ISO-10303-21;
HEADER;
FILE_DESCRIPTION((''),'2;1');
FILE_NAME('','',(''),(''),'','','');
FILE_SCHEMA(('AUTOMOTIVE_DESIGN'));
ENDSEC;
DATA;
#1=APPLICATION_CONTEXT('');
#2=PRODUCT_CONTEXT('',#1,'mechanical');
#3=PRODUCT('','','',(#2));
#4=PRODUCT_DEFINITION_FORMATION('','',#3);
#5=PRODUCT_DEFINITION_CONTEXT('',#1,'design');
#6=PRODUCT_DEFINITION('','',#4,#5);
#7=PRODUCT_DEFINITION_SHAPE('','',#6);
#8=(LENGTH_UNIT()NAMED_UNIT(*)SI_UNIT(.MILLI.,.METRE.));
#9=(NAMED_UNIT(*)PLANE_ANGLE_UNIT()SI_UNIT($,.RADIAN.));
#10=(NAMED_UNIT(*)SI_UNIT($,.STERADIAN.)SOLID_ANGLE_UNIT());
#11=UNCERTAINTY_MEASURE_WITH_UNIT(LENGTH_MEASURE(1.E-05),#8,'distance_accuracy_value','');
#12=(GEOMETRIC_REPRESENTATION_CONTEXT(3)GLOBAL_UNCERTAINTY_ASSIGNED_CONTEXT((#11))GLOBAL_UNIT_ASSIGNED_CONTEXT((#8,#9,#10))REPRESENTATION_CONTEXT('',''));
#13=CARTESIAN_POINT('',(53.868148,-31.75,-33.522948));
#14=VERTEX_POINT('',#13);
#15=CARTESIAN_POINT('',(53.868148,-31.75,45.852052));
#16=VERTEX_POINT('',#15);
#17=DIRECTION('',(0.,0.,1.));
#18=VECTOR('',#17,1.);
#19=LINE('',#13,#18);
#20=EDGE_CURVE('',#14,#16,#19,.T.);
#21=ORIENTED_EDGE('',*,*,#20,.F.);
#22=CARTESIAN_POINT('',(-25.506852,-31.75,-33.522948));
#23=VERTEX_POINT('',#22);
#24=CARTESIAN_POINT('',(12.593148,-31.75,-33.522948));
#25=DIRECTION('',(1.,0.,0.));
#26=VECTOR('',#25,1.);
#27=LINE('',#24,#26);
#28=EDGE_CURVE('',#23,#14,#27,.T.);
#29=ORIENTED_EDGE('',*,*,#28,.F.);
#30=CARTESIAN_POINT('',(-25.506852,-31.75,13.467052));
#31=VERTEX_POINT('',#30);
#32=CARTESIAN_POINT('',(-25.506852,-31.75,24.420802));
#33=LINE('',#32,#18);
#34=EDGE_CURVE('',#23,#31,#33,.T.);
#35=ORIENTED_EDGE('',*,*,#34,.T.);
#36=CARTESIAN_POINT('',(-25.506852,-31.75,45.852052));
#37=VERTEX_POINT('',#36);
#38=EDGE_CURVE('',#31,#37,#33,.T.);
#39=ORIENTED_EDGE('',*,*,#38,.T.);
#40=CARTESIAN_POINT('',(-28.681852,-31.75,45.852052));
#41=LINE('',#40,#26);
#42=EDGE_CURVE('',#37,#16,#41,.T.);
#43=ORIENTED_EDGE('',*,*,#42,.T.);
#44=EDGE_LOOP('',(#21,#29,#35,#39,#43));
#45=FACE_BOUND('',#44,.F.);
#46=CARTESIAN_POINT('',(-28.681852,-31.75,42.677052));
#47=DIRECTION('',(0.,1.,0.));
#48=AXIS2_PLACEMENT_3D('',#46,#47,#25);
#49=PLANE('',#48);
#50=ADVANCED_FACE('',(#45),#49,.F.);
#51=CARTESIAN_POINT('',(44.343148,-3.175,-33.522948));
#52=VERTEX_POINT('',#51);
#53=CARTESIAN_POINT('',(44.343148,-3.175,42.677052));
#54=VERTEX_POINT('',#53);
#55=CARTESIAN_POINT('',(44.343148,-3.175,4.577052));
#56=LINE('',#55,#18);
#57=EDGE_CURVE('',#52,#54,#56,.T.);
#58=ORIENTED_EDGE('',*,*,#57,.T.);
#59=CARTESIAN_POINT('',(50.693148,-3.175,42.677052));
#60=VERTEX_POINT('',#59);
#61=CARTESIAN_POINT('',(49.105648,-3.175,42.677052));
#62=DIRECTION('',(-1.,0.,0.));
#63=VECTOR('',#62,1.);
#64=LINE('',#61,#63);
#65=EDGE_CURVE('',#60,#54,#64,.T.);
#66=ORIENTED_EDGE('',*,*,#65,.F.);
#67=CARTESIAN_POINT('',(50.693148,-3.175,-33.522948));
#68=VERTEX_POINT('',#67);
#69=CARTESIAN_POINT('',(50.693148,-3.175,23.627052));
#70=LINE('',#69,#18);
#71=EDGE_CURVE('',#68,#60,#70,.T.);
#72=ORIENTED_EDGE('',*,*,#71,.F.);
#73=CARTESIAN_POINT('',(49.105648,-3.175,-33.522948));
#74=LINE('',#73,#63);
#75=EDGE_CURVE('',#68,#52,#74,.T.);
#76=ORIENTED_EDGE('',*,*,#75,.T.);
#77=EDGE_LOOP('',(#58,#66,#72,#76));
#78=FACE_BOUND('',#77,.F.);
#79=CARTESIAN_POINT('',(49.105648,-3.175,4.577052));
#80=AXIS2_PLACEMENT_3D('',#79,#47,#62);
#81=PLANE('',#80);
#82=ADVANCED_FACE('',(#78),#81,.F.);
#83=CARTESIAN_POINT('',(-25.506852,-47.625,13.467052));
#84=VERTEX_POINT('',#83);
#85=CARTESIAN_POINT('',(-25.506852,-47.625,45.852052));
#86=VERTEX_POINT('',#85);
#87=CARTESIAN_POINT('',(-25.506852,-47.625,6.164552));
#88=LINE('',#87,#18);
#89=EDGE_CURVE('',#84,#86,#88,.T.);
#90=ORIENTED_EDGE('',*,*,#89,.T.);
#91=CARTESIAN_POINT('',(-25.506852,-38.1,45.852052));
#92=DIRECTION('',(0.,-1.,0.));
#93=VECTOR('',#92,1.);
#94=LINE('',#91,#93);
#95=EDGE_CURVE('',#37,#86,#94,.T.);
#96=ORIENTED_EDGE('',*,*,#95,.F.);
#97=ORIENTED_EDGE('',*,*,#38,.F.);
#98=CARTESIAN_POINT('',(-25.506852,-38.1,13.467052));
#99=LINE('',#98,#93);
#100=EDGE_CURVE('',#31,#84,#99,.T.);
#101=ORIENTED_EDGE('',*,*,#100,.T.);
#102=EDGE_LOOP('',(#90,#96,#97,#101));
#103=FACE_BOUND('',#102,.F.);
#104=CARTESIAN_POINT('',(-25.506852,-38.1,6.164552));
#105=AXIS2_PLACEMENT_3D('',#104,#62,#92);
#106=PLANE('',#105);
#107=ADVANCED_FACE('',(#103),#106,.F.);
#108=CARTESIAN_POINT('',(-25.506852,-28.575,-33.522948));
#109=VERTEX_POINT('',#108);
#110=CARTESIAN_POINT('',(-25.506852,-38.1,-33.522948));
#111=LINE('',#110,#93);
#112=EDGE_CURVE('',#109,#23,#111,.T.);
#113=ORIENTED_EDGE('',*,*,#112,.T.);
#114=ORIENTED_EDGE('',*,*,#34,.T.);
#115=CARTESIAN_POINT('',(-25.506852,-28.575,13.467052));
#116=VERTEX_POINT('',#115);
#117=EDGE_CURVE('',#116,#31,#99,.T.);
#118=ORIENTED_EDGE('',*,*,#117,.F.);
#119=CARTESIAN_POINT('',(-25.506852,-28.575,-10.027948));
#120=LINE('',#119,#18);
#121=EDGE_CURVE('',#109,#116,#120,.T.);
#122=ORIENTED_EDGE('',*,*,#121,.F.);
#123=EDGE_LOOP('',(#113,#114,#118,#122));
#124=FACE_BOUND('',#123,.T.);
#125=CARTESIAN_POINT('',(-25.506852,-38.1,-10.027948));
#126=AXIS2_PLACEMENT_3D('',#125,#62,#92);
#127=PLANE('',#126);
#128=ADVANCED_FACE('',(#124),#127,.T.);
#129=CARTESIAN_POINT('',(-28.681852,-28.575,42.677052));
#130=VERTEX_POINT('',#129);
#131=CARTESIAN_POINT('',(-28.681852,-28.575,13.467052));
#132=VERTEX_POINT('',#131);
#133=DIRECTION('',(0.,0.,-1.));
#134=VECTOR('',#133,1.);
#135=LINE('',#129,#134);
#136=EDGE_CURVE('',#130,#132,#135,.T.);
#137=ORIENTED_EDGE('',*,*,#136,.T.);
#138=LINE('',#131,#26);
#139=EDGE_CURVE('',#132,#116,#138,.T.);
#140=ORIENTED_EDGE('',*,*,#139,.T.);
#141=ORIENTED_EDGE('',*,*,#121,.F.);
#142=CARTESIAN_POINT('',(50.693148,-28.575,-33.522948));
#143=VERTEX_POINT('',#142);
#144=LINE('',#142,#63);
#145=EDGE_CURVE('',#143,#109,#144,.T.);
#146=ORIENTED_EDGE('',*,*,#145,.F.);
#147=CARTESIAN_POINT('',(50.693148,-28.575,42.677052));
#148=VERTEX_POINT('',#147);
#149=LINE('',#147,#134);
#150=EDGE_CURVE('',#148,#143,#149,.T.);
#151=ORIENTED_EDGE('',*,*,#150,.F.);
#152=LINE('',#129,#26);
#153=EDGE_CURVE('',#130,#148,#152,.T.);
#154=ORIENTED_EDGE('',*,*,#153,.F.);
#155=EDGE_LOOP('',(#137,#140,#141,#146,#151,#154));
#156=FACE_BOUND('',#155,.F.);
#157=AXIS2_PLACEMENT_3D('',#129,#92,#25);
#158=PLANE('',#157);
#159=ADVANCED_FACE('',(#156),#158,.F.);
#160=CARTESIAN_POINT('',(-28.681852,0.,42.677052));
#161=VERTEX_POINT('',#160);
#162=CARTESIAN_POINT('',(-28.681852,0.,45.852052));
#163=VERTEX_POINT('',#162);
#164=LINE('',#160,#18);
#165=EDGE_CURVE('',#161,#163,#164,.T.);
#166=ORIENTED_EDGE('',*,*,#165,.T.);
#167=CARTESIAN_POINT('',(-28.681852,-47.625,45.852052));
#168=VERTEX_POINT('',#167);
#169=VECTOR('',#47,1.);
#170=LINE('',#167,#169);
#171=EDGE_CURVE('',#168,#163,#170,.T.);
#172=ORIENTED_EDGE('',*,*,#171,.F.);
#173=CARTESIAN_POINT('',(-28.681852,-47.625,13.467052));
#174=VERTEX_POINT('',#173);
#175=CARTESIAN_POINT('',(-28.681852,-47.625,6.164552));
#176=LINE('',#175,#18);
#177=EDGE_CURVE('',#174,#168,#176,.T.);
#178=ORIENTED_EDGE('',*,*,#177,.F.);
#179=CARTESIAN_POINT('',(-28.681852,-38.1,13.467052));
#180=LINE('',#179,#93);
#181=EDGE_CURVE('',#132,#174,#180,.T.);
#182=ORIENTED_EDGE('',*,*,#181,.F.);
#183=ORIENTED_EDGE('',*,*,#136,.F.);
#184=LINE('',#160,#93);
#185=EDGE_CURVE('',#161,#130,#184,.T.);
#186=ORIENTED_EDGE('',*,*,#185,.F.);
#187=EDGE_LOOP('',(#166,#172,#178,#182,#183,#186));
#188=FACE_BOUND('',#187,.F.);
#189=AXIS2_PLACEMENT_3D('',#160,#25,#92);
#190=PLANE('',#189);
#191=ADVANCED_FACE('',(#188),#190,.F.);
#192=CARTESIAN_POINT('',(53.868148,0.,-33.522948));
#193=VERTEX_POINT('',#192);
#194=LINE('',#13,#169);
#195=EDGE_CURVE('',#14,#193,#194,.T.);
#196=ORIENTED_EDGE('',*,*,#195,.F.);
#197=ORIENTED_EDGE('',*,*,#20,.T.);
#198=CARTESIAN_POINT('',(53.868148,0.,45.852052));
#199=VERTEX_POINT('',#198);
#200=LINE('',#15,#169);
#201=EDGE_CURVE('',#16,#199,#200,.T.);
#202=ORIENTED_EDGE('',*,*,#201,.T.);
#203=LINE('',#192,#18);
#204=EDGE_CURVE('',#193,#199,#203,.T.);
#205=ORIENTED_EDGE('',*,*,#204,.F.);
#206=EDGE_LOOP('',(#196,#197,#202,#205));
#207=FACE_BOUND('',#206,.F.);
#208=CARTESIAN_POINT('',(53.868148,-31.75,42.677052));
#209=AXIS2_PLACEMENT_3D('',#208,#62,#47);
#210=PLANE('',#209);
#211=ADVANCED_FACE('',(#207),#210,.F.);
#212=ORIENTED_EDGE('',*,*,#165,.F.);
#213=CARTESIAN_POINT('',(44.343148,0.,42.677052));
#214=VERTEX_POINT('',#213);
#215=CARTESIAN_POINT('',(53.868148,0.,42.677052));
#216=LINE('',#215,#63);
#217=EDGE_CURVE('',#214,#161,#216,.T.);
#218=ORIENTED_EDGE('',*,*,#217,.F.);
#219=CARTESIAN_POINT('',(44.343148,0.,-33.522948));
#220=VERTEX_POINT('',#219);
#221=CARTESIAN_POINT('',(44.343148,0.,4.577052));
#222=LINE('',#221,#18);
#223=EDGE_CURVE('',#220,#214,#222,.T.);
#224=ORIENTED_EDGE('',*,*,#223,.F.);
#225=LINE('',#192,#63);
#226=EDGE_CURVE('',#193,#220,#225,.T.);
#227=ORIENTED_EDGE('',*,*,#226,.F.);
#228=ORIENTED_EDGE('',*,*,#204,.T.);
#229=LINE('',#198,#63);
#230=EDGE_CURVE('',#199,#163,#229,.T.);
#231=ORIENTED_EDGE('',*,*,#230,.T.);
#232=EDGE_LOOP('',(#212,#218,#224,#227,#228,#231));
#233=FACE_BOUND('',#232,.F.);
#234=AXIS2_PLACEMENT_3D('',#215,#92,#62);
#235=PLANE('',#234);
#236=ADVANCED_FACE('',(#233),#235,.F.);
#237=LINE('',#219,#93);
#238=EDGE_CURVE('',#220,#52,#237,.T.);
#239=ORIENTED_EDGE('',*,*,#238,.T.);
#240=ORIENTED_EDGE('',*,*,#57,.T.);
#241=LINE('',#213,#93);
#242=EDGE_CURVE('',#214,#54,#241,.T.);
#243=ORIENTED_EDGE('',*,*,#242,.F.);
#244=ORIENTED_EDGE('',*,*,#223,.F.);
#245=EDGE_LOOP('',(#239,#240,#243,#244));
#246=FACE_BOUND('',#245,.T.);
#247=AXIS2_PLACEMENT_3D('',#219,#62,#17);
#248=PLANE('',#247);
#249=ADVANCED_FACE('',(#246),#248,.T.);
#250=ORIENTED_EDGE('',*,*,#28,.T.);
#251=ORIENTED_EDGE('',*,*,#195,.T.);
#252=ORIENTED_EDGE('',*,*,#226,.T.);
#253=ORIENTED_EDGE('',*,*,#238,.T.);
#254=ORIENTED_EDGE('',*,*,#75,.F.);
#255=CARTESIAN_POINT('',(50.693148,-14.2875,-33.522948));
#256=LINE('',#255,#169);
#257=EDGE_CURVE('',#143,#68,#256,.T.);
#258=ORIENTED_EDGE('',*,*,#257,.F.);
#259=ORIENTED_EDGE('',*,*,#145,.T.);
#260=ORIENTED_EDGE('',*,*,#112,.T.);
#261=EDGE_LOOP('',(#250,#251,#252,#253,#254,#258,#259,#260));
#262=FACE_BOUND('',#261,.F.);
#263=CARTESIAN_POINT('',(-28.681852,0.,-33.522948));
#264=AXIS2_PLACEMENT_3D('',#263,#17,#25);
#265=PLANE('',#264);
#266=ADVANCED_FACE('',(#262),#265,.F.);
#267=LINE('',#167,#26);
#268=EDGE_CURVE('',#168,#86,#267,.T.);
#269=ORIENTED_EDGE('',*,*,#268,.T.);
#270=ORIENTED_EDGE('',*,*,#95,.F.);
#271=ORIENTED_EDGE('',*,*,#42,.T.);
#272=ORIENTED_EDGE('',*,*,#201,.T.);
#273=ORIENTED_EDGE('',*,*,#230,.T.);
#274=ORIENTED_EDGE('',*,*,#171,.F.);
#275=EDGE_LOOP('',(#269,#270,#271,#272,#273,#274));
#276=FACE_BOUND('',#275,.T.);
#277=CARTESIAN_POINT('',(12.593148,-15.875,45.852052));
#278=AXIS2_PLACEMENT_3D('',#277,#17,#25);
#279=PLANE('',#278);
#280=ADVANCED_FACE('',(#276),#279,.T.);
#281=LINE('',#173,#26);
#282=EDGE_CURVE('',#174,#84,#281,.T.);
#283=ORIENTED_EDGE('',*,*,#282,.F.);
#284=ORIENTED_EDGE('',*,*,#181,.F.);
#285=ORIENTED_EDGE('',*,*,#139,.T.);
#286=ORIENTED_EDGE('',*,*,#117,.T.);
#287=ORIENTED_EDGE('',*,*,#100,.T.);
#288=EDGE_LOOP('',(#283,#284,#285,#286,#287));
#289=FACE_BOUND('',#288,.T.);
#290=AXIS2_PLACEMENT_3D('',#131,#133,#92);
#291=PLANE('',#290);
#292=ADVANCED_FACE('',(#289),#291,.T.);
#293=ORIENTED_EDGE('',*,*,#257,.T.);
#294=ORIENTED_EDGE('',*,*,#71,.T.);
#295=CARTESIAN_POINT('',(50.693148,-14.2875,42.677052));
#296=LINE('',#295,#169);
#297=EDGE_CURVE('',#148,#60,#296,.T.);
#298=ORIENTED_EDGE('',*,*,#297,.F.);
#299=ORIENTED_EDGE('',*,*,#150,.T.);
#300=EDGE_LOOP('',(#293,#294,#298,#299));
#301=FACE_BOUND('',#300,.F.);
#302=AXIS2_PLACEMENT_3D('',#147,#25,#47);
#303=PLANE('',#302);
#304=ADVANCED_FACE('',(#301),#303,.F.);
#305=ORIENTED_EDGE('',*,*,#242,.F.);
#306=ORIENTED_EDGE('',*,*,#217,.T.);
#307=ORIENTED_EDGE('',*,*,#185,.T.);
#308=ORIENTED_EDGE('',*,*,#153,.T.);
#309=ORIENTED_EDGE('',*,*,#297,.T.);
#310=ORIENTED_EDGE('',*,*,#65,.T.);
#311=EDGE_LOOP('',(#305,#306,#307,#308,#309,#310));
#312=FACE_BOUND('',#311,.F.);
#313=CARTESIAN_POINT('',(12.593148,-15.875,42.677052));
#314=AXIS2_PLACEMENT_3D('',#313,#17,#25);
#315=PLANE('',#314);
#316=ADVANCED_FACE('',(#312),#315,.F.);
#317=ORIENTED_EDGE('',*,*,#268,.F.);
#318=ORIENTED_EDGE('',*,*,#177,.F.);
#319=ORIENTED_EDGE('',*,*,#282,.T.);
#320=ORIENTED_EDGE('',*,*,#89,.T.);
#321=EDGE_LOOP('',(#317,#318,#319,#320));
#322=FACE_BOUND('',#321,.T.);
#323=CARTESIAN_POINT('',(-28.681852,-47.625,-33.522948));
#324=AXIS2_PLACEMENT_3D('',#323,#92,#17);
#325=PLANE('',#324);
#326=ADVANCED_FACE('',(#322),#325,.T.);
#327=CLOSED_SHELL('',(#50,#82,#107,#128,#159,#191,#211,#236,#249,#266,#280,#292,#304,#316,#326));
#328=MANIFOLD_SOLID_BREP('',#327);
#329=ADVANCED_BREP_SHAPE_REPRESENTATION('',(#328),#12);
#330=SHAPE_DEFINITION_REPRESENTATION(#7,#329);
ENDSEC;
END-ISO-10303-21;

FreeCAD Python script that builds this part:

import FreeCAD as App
import Part
import Sketcher
from FreeCAD import Vector
Q = App.Units.Quantity

doc = App.newDocument("Part")
params = doc.addObject("Spreadsheet::Sheet", "Params")
for row, (alias, value) in enumerate([
    ("sketch1_height", "3 in"),
    ("sketch1_width", "3.25 in"),
    ("pad1_length", "1.25 in"),
    ("sketch2_width", "3.125 in"),
    ("sketch2_height", "1.125 in"),
    ("pocket1_length", "4 in"),
    ("sketch3_height", "3 in"),
    ("sketch3_width", "0.375 in"),
    ("pad2_length", "0.125 in"),
    ("sketch4_width", "3.25 in"),
    ("sketch4_height", "1.25 in"),
    ("pad3_length", "0.125 in"),
    ("sketch5_width", "0.75 in"),
    ("sketch5_height", "3.125 in"),
    ("pad4_length", "0.125 in"),
    ("sketch6_width", "0.75 in"),
    ("sketch6_height", "1.85 in"),
    ("pocket2_length", "0.125 in"),
], start=1):
    params.set(f"A{row}", alias)
    params.set(f"B{row}", "=" + value)
    params.setAlias(f"B{row}", alias)

body = doc.addObject("PartDesign::Body", "Body")

sketch1 = body.newObject("Sketcher::SketchObject", "Sketch")
sketch1.AttachmentSupport = (doc.getObject("XZ_Plane"), [""])
sketch1.MapMode = "FlatFace"
sketch1.addGeometry([
    Part.LineSegment(Vector(-29, 43, 0), Vector(-29, -34, 0)),
    Part.LineSegment(Vector(-29, -34, 0), Vector(54, -34, 0)),
    Part.LineSegment(Vector(54, -34, 0), Vector(54, 43, 0)),
    Part.LineSegment(Vector(54, 43, 0), Vector(-29, 43, 0)),
], False)
sketch1.addConstraint([
    Sketcher.Constraint("Coincident", 0, 2, 1, 1),
    Sketcher.Constraint("Coincident", 1, 2, 2, 1),
    Sketcher.Constraint("Coincident", 2, 2, 3, 1),
    Sketcher.Constraint("Coincident", 3, 2, 0, 1),
    Sketcher.Constraint("Vertical", 0),
    Sketcher.Constraint("Horizontal", 1),
    Sketcher.Constraint("Vertical", 2),
    Sketcher.Constraint("Horizontal", 3),
    Sketcher.Constraint("DistanceY", 0, 2, 0, 1, Q("3 in")),
    Sketcher.Constraint("DistanceX", 1, 1, 1, 2, Q("3.25 in")),
    Sketcher.Constraint("DistanceX", 0, 2, -1, 1, Q("28.681852 mm")),
    Sketcher.Constraint("DistanceY", 0, 2, -1, 1, Q("33.522948 mm")),
])
sketch1.setExpression("Constraints[8]", "Params.sketch1_height")
sketch1.setExpression("Constraints[9]", "Params.sketch1_width")
pad1 = body.newObject("PartDesign::Pad", "Pad")
pad1.Profile = sketch1
pad1.setExpression("Length", "Params.pad1_length")

sketch2 = body.newObject("Sketcher::SketchObject", "Sketch001")
sketch2.AttachmentSupport = (doc.getObject("XY_Plane"), [""])
sketch2.MapMode = "FlatFace"
sketch2.AttachmentOffset = App.Placement(Vector(0, 0, 42.677052), App.Rotation())
sketch2.addGeometry([
    Part.LineSegment(Vector(-29, 0, 0), Vector(-29, -29, 0)),
    Part.LineSegment(Vector(-29, -29, 0), Vector(51, -29, 0)),
    Part.LineSegment(Vector(51, -29, 0), Vector(51, 0, 0)),
    Part.LineSegment(Vector(51, 0, 0), Vector(-29, 0, 0)),
], False)
sketch2.addConstraint([
    Sketcher.Constraint("Coincident", 0, 2, 1, 1),
    Sketcher.Constraint("Coincident", 1, 2, 2, 1),
    Sketcher.Constraint("Coincident", 2, 2, 3, 1),
    Sketcher.Constraint("Coincident", 3, 2, 0, 1),
    Sketcher.Constraint("Vertical", 0),
    Sketcher.Constraint("Horizontal", 1),
    Sketcher.Constraint("Vertical", 2),
    Sketcher.Constraint("Horizontal", 3),
    Sketcher.Constraint("PointOnObject", 2, 2, -1),
    Sketcher.Constraint("DistanceX", 1, 1, 1, 2, Q("3.125 in")),
    Sketcher.Constraint("DistanceY", 0, 2, 0, 1, Q("1.125 in")),
    Sketcher.Constraint("DistanceX", 0, 2, -1, 1, Q("28.681852 mm")),
])
sketch2.setExpression("Constraints[9]", "Params.sketch2_width")
sketch2.setExpression("Constraints[10]", "Params.sketch2_height")
pocket1 = body.newObject("PartDesign::Pocket", "Pocket")
pocket1.Profile = sketch2
pocket1.setExpression("Length", "Params.pocket1_length")

sketch3 = body.newObject("Sketcher::SketchObject", "Sketch002")
sketch3.AttachmentSupport = (doc.getObject("XZ_Plane"), [""])
sketch3.MapMode = "FlatFace"
sketch3.addGeometry([
    Part.LineSegment(Vector(54, 43, 0), Vector(54, -34, 0)),
    Part.LineSegment(Vector(54, -34, 0), Vector(44, -34, 0)),
    Part.LineSegment(Vector(44, -34, 0), Vector(44, 43, 0)),
    Part.LineSegment(Vector(44, 43, 0), Vector(54, 43, 0)),
], False)
sketch3.addConstraint([
    Sketcher.Constraint("Coincident", 0, 2, 1, 1),
    Sketcher.Constraint("Coincident", 1, 2, 2, 1),
    Sketcher.Constraint("Coincident", 2, 2, 3, 1),
    Sketcher.Constraint("Coincident", 3, 2, 0, 1),
    Sketcher.Constraint("Vertical", 0),
    Sketcher.Constraint("Horizontal", 1),
    Sketcher.Constraint("Vertical", 2),
    Sketcher.Constraint("Horizontal", 3),
    Sketcher.Constraint("DistanceY", 0, 2, 0, 1, Q("3 in")),
    Sketcher.Constraint("DistanceX", 1, 2, 1, 1, Q("0.375 in")),
    Sketcher.Constraint("DistanceX", -1, 1, 0, 2, Q("53.868148 mm")),
    Sketcher.Constraint("DistanceY", 0, 2, -1, 1, Q("33.522948 mm")),
])
sketch3.setExpression("Constraints[8]", "Params.sketch3_height")
sketch3.setExpression("Constraints[9]", "Params.sketch3_width")
pad2 = body.newObject("PartDesign::Pad", "Pad001")
pad2.Profile = sketch3
pad2.setExpression("Length", "Params.pad2_length")

sketch4 = body.newObject("Sketcher::SketchObject", "Sketch003")
sketch4.AttachmentSupport = (doc.getObject("XY_Plane"), [""])
sketch4.MapMode = "FlatFace"
sketch4.AttachmentOffset = App.Placement(Vector(0, 0, 42.677052), App.Rotation())
sketch4.addGeometry([
    Part.LineSegment(Vector(-29, -32, 0), Vector(54, -32, 0)),
    Part.LineSegment(Vector(54, -32, 0), Vector(54, 0, 0)),
    Part.LineSegment(Vector(54, 0, 0), Vector(-29, 0, 0)),
    Part.LineSegment(Vector(-29, 0, 0), Vector(-29, -32, 0)),
], False)
sketch4.addConstraint([
    Sketcher.Constraint("Coincident", 0, 2, 1, 1),
    Sketcher.Constraint("Coincident", 1, 2, 2, 1),
    Sketcher.Constraint("Coincident", 2, 2, 3, 1),
    Sketcher.Constraint("Coincident", 3, 2, 0, 1),
    Sketcher.Constraint("Horizontal", 0),
    Sketcher.Constraint("Vertical", 1),
    Sketcher.Constraint("Horizontal", 2),
    Sketcher.Constraint("Vertical", 3),
    Sketcher.Constraint("PointOnObject", 1, 2, -1),
    Sketcher.Constraint("DistanceX", 0, 1, 0, 2, Q("3.25 in")),
    Sketcher.Constraint("DistanceY", 1, 1, 1, 2, Q("1.25 in")),
    Sketcher.Constraint("DistanceX", 2, 2, -1, 1, Q("28.681852 mm")),
])
sketch4.setExpression("Constraints[9]", "Params.sketch4_width")
sketch4.setExpression("Constraints[10]", "Params.sketch4_height")
pad3 = body.newObject("PartDesign::Pad", "Pad002")
pad3.Profile = sketch4
pad3.setExpression("Length", "Params.pad3_length")

sketch5 = body.newObject("Sketcher::SketchObject", "Sketch004")
sketch5.AttachmentSupport = (doc.getObject("YZ_Plane"), [""])
sketch5.MapMode = "FlatFace"
sketch5.AttachmentOffset = App.Placement(Vector(0, 0, -28.681852), App.Rotation())
sketch5.addGeometry([
    Part.LineSegment(Vector(-29, 46, 0), Vector(-29, -34, 0)),
    Part.LineSegment(Vector(-29, -34, 0), Vector(-48, -34, 0)),
    Part.LineSegment(Vector(-48, -34, 0), Vector(-48, 46, 0)),
    Part.LineSegment(Vector(-48, 46, 0), Vector(-29, 46, 0)),
], False)
sketch5.addConstraint([
    Sketcher.Constraint("Coincident", 0, 2, 1, 1),
    Sketcher.Constraint("Coincident", 1, 2, 2, 1),
    Sketcher.Constraint("Coincident", 2, 2, 3, 1),
    Sketcher.Constraint("Coincident", 3, 2, 0, 1),
    Sketcher.Constraint("Vertical", 0),
    Sketcher.Constraint("Horizontal", 1),
    Sketcher.Constraint("Vertical", 2),
    Sketcher.Constraint("Horizontal", 3),
    Sketcher.Constraint("DistanceX", 1, 2, 1, 1, Q("0.75 in")),
    Sketcher.Constraint("DistanceY", 0, 2, 0, 1, Q("3.125 in")),
    Sketcher.Constraint("DistanceX", 0, 2, -1, 1, Q("1.125 in")),
    Sketcher.Constraint("DistanceY", 0, 2, -1, 1, Q("33.522948 mm")),
])
sketch5.setExpression("Constraints[8]", "Params.sketch5_width")
sketch5.setExpression("Constraints[9]", "Params.sketch5_height")
pad4 = body.newObject("PartDesign::Pad", "Pad003")
pad4.Profile = sketch5
pad4.setExpression("Length", "Params.pad4_length")

sketch6 = body.newObject("Sketcher::SketchObject", "Sketch005")
sketch6.AttachmentSupport = (doc.getObject("YZ_Plane"), [""])
sketch6.MapMode = "FlatFace"
sketch6.AttachmentOffset = App.Placement(Vector(0, 0, -28.681852), App.Rotation())
sketch6.addGeometry([
    Part.LineSegment(Vector(-29, 13, 0), Vector(-29, -34, 0)),
    Part.LineSegment(Vector(-29, -34, 0), Vector(-48, -34, 0)),
    Part.LineSegment(Vector(-48, -34, 0), Vector(-48, 13, 0)),
    Part.LineSegment(Vector(-48, 13, 0), Vector(-29, 13, 0)),
], False)
sketch6.addConstraint([
    Sketcher.Constraint("Coincident", 0, 2, 1, 1),
    Sketcher.Constraint("Coincident", 1, 2, 2, 1),
    Sketcher.Constraint("Coincident", 2, 2, 3, 1),
    Sketcher.Constraint("Coincident", 3, 2, 0, 1),
    Sketcher.Constraint("Vertical", 0),
    Sketcher.Constraint("Horizontal", 1),
    Sketcher.Constraint("Vertical", 2),
    Sketcher.Constraint("Horizontal", 3),
    Sketcher.Constraint("DistanceX", 1, 2, 1, 1, Q("0.75 in")),
    Sketcher.Constraint("DistanceY", 0, 2, 0, 1, Q("1.85 in")),
    Sketcher.Constraint("DistanceX", 0, 2, -1, 1, Q("1.125 in")),
    Sketcher.Constraint("DistanceY", 0, 2, -1, 1, Q("33.522948 mm")),
])
sketch6.setExpression("Constraints[8]", "Params.sketch6_width")
sketch6.setExpression("Constraints[9]", "Params.sketch6_height")
pocket2 = body.newObject("PartDesign::Pocket", "Pocket001")
pocket2.Profile = sketch6
pocket2.setExpression("Length", "Params.pocket2_length")
pocket2.Reversed = True

doc.recompute()
